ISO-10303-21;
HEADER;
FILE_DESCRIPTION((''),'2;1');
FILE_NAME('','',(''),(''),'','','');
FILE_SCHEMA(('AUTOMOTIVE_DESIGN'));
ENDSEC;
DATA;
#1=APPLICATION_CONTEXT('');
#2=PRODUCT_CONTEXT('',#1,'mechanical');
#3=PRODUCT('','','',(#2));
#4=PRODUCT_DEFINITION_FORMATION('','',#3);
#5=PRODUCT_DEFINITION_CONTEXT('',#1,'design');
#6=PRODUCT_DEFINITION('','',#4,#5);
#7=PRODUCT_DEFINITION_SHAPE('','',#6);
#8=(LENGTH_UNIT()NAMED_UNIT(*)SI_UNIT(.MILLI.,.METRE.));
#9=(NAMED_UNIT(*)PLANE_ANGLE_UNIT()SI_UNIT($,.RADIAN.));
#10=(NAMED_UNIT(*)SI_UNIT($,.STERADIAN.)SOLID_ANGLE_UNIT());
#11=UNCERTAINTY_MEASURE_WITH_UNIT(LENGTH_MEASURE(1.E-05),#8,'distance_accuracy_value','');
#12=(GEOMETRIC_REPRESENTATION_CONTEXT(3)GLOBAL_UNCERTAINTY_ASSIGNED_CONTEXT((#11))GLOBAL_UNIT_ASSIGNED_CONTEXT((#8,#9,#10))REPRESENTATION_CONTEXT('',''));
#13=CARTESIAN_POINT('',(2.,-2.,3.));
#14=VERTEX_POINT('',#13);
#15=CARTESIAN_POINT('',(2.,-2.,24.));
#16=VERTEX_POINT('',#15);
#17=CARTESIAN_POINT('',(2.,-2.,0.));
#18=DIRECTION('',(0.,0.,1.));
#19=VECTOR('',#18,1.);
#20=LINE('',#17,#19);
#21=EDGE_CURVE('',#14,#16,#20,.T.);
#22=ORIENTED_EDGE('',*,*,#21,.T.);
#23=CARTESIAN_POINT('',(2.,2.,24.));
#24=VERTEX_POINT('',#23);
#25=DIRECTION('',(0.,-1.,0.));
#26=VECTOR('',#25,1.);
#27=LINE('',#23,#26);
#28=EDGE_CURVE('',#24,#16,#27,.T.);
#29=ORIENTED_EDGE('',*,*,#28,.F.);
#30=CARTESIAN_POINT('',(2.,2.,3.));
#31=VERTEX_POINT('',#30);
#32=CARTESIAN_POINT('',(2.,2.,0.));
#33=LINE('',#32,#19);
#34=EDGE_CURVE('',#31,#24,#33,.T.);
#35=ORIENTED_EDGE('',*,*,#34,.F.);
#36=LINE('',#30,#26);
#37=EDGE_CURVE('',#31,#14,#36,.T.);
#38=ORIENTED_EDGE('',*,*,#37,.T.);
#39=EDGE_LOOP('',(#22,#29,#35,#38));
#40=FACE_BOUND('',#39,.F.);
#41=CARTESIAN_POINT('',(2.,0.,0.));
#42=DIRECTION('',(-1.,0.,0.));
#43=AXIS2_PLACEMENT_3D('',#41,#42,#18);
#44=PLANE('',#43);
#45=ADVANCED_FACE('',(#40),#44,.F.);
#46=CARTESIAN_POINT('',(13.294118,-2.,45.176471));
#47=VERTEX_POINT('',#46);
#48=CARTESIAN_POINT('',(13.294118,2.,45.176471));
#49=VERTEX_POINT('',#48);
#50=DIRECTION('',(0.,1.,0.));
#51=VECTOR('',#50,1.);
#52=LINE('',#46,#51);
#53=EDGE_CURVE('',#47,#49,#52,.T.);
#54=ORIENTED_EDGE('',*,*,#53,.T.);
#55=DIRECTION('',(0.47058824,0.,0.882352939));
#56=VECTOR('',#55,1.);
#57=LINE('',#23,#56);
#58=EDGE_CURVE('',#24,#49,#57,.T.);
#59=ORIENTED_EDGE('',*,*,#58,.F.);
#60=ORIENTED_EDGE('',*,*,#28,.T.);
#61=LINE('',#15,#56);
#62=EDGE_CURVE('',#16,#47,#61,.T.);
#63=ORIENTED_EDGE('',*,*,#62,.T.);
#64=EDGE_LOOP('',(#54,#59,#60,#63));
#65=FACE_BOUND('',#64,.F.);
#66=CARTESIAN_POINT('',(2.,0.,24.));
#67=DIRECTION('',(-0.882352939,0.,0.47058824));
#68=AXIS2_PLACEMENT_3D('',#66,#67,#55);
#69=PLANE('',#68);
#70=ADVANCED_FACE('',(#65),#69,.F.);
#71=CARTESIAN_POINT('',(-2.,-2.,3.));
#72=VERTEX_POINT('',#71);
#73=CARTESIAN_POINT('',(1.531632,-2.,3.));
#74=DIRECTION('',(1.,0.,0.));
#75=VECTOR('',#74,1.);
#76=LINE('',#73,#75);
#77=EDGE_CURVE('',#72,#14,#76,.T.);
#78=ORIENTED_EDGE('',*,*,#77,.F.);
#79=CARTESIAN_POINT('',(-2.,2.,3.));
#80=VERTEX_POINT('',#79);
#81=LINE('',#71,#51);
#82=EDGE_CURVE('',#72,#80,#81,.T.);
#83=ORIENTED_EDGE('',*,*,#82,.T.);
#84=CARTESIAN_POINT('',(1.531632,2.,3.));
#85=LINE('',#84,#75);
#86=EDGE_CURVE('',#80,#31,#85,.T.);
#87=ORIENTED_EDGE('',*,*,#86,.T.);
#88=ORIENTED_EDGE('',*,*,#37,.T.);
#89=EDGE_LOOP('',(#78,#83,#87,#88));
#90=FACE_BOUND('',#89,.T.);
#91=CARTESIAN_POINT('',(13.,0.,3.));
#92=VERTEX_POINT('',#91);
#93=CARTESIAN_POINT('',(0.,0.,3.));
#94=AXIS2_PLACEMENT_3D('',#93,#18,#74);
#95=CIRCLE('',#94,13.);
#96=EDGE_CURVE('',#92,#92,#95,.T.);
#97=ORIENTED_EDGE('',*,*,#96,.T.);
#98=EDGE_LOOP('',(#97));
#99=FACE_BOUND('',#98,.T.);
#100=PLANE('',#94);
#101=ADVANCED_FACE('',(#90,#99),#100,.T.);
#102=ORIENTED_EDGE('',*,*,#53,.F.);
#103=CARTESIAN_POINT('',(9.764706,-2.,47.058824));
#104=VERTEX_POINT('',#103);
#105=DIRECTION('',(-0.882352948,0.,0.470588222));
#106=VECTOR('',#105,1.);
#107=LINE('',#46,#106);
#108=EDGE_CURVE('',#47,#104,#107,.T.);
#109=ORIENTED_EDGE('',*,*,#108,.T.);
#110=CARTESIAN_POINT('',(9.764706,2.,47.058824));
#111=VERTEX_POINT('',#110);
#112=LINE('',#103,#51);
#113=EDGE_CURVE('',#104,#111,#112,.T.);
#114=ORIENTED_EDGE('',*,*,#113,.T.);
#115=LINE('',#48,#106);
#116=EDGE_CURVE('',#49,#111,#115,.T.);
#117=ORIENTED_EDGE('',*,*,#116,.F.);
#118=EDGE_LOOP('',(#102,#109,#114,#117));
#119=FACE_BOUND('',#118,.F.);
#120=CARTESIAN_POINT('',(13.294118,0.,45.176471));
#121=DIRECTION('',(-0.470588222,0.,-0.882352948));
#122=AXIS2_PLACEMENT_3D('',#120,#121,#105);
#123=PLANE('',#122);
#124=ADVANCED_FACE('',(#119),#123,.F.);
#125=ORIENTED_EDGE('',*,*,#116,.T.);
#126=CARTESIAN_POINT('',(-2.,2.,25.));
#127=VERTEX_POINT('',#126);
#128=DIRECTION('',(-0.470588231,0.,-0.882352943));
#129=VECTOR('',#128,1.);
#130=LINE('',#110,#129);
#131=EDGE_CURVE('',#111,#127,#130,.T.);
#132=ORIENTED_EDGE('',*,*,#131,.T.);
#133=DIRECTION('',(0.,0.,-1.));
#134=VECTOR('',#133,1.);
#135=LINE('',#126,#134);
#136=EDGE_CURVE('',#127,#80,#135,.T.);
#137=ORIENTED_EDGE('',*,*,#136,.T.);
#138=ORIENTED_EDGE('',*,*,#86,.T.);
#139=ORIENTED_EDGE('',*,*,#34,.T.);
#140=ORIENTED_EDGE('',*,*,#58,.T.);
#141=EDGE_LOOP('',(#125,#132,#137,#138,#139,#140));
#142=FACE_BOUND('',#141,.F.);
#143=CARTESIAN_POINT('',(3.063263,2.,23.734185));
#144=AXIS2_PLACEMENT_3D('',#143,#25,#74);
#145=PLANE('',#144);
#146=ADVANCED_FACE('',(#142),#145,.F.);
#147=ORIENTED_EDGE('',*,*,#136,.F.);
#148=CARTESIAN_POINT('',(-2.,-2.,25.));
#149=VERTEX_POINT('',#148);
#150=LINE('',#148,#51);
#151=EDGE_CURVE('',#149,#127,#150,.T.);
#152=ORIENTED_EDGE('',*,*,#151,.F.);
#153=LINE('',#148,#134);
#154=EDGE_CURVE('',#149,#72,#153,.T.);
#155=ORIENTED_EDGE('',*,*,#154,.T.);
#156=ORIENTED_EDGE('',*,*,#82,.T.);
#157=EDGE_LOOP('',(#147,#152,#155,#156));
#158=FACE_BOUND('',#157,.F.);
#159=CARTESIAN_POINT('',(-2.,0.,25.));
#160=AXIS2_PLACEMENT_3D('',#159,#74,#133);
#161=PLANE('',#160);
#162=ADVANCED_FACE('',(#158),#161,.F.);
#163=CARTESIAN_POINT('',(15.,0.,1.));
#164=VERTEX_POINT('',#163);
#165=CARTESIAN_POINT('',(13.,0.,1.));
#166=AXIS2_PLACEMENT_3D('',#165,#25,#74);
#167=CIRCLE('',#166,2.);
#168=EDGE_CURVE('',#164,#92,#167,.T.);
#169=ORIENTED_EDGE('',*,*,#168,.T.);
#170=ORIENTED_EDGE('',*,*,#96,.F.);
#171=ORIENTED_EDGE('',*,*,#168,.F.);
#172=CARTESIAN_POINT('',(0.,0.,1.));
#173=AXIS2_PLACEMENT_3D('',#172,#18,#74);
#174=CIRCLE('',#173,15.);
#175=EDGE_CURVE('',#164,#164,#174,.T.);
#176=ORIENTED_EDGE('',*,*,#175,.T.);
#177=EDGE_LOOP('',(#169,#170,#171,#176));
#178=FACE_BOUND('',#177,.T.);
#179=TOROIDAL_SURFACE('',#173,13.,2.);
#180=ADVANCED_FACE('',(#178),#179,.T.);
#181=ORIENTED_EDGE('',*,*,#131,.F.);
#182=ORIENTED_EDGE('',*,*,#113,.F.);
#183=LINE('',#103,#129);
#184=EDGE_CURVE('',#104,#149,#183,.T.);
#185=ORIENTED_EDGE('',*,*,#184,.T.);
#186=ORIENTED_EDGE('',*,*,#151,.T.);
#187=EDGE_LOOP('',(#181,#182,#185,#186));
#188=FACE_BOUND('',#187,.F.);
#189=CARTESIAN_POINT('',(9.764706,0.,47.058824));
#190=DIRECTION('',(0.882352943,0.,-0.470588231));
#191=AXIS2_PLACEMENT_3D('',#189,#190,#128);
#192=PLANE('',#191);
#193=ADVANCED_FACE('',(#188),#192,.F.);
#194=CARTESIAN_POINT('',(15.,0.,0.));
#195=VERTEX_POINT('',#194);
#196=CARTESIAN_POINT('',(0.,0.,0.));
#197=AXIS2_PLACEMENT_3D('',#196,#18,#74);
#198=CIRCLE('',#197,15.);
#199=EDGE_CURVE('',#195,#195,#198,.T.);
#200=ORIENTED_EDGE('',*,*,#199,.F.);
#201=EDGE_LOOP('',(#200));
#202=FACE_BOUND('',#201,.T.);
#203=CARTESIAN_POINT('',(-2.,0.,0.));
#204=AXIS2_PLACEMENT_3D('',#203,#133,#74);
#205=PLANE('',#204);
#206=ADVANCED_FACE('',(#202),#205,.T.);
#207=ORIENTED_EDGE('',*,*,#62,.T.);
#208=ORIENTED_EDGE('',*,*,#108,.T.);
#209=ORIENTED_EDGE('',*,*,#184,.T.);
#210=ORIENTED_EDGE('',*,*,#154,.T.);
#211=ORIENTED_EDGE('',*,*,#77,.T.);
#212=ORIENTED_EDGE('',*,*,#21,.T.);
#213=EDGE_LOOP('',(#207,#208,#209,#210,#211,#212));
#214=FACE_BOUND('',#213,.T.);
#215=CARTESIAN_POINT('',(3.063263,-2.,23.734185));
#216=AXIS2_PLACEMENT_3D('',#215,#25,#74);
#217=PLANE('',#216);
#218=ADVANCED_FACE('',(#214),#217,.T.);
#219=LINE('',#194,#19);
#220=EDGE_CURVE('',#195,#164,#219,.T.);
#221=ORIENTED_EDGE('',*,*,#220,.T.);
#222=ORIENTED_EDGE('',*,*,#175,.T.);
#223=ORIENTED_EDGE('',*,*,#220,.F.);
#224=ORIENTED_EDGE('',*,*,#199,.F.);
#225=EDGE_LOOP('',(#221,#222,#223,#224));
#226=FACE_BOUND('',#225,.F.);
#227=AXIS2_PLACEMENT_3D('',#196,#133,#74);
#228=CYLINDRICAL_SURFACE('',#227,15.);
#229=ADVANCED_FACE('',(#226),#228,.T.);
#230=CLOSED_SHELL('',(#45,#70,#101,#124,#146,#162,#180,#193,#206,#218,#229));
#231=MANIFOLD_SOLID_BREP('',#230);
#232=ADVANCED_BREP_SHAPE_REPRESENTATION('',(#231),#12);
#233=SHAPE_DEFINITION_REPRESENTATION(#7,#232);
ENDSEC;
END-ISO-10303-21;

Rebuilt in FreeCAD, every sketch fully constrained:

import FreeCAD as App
import Part
import Sketcher


def edges_at(feature, points):
    """Names of the edges that pass closest to the given points."""
    edges = feature.Shape.Edges
    near = lambda p: min(range(len(edges)), key=lambda i: edges[i].distToShape(Part.Vertex(*p))[0])
    return sorted({f"Edge{near(p) + 1}" for p in points})

doc = App.newDocument("Part")
body = doc.addObject("PartDesign::Body", "Body")

# Sketch on XY plane
sketch1 = body.newObject("Sketcher::SketchObject", "Sketch")
sketch1.AttachmentSupport = (doc.getObject("XY_Plane"), [""])
sketch1.MapMode = "FlatFace"
sketch1.addGeometry(Part.Circle(App.Vector(0, 0, 0), App.Vector(0, 0, 1), 15), False)
sketch1.addConstraint(Sketcher.Constraint("Coincident", 0, 3, -1, 1))
sketch1.addConstraint(Sketcher.Constraint("Diameter", 0, 30.0))
pad1 = body.newObject("PartDesign::Pad", "Pad")
pad1.Profile = sketch1
pad1.Length = 3

# Sketch on XZ plane
sketch2 = body.newObject("Sketcher::SketchObject", "Sketch001")
sketch2.AttachmentSupport = (doc.getObject("XZ_Plane"), [""])
sketch2.MapMode = "FlatFace"
sketch2.addGeometry(Part.LineSegment(App.Vector(-2, 0, 0), App.Vector(2, 0, 0)), False)
sketch2.addGeometry(Part.LineSegment(App.Vector(2, 0, 0), App.Vector(2, 24, 0)), False)
sketch2.addGeometry(Part.LineSegment(App.Vector(2, 24, 0), App.Vector(13.3, 45.2, 0)), False)
sketch2.addGeometry(Part.LineSegment(App.Vector(13.3, 45.2, 0), App.Vector(9.8, 47.1, 0)), False)
sketch2.addGeometry(Part.LineSegment(App.Vector(9.8, 47.1, 0), App.Vector(-2, 25, 0)), False)
sketch2.addGeometry(Part.LineSegment(App.Vector(-2, 25, 0), App.Vector(-2, 0, 0)), False)
sketch2.addConstraint(Sketcher.Constraint("Coincident", 0, 2, 1, 1))
sketch2.addConstraint(Sketcher.Constraint("Coincident", 1, 2, 2, 1))
sketch2.addConstraint(Sketcher.Constraint("Coincident", 2, 2, 3, 1))
sketch2.addConstraint(Sketcher.Constraint("Coincident", 3, 2, 4, 1))
sketch2.addConstraint(Sketcher.Constraint("Coincident", 4, 2, 5, 1))
sketch2.addConstraint(Sketcher.Constraint("Coincident", 5, 2, 0, 1))
sketch2.addConstraint(Sketcher.Constraint("Horizontal", 0))
sketch2.addConstraint(Sketcher.Constraint("Vertical", 1))
sketch2.addConstraint(Sketcher.Constraint("Vertical", 5))
sketch2.addConstraint(Sketcher.Constraint("Symmetric", 0, 2, 5, 2, -1, 1))
sketch2.addConstraint(Sketcher.Constraint("Perpendicular", 2, 3))
sketch2.addConstraint(Sketcher.Constraint("Perpendicular", 3, 4))
sketch2.addConstraint(Sketcher.Constraint("DistanceX", 0, 1, 0, 2, 4.0))
sketch2.addConstraint(Sketcher.Constraint("DistanceY", 1, 1, 1, 2, 24.0))
sketch2.addConstraint(Sketcher.Constraint("DistanceY", 5, 2, 5, 1, 25.0))
sketch2.addConstraint(Sketcher.Constraint("Distance", 2, 24.000001))
sketch2.addConstraint(Sketcher.Constraint("Distance", 3, 4.0))
pad2 = body.newObject("PartDesign::Pad", "Pad001")
pad2.Profile = sketch2
pad2.Type = "TwoLengths"
pad2.Length = 2
pad2.Length2 = 2
doc.recompute()

fillet = body.newObject("PartDesign::Fillet", "Fillet")
fillet.Base = (pad2, edges_at(pad2, [(-15, 0, 3)]))
fillet.Radius = 2

doc.recompute()
